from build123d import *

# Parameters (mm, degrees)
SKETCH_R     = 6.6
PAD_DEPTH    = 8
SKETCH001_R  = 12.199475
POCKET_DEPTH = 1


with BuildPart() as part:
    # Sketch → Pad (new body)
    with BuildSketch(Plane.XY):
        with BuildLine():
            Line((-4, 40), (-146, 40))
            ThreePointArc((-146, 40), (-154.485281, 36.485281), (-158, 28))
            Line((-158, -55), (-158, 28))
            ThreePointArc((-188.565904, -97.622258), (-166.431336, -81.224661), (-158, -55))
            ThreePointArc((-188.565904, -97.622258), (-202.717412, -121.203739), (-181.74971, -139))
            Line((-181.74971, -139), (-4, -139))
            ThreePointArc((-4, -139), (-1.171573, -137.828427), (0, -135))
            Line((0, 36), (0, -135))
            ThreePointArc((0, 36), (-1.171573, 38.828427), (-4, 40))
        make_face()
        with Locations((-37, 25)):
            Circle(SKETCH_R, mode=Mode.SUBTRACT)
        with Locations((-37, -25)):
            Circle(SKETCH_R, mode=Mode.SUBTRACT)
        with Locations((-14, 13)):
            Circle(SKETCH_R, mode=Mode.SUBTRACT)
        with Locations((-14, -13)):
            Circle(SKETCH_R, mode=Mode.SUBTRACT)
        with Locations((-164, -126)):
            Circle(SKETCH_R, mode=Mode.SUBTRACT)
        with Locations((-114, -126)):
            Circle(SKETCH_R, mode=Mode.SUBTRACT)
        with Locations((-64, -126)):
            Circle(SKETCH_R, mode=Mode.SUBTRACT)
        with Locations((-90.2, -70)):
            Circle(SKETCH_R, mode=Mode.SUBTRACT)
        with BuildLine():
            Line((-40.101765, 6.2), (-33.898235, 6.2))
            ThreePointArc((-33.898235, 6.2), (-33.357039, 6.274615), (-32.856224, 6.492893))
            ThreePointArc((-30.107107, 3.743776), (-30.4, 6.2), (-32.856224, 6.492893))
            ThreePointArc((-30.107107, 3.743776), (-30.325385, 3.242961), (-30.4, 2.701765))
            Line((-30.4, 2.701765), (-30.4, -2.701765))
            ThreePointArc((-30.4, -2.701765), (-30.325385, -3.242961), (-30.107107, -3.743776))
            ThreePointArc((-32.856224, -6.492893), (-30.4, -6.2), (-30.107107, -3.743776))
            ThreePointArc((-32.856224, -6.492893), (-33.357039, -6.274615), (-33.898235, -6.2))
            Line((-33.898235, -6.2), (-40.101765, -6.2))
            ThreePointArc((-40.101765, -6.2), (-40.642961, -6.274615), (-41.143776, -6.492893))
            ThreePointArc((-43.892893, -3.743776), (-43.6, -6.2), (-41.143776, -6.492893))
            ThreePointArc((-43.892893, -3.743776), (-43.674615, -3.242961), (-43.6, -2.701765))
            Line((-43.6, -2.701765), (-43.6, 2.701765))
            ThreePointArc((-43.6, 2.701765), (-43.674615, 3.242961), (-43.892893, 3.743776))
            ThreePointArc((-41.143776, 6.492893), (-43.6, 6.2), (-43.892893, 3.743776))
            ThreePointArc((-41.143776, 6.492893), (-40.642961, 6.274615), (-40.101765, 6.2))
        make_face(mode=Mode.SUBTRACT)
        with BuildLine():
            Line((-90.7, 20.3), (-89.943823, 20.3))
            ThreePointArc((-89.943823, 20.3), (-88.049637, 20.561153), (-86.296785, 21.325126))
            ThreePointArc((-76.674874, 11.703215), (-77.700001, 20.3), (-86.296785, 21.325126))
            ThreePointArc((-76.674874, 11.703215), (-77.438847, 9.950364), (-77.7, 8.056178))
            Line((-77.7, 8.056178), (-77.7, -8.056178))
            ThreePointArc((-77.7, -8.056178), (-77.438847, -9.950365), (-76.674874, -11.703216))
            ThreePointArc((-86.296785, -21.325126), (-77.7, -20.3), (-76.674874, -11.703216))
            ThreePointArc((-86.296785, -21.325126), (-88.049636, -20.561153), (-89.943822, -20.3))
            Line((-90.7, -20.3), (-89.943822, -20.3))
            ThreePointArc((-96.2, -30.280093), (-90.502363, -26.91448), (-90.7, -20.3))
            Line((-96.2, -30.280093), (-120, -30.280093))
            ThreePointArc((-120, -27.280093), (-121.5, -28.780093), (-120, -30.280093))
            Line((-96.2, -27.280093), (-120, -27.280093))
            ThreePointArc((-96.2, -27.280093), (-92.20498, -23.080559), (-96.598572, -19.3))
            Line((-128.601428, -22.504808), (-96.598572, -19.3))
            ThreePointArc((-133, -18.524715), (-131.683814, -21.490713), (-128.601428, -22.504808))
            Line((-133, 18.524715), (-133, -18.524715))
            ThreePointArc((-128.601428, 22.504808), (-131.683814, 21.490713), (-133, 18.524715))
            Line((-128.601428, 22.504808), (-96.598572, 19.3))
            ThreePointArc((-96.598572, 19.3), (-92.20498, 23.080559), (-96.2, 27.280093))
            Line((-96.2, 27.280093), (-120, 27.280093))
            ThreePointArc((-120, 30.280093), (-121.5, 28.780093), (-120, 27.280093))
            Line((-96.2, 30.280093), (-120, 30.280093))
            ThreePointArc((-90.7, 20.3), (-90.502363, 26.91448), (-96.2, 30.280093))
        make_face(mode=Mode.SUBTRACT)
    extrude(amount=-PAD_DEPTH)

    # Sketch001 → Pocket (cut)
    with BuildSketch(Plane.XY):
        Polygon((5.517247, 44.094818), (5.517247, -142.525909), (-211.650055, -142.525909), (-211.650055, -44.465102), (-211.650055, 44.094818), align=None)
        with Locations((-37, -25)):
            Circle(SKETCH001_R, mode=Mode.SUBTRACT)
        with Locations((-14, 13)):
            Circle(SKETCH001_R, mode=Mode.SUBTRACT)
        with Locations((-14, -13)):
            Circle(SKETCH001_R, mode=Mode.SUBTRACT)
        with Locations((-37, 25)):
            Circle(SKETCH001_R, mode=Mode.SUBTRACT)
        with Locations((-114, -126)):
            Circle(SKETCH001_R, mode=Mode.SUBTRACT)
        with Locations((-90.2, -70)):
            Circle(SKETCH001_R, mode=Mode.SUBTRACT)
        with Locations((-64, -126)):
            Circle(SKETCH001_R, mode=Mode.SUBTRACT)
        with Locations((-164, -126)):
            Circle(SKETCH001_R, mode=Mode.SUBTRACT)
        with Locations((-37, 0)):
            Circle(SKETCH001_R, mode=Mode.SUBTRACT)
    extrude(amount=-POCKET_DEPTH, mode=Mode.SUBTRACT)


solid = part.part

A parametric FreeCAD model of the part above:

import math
import FreeCAD as App
import Part
import Sketcher
Q = App.Units.Quantity

doc = App.newDocument("Part")
params = doc.addObject("Spreadsheet::Sheet", "Params")
for row, (alias, value) in enumerate([
    ("sketch1_radius", "12.000001 mm"),
    ("sketch1_radius2", "44.999999 mm"),
    ("sketch1_radius3", "4 mm"),
    ("sketch1_radius4", "7 mm"),
    ("sketch1_radius5", "2.000001 mm"),
    ("pad1_length", "8 mm"),
    ("pocket1_length", "1 mm"),
], start=1):
    params.set(f"A{row}", alias)
    params.set(f"B{row}", "=" + value)
    params.setAlias(f"B{row}", alias)

body = doc.addObject("PartDesign::Body", "Body")

sketch1 = body.newObject("Sketcher::SketchObject", "Sketch")
sketch1.AttachmentSupport = (doc.getObject("XY_Plane"), [""])
sketch1.MapMode = "FlatFace"
sketch1.addGeometry([
    Part.LineSegment(App.Vector(-4, 40, 0), App.Vector(-146, 40, 0)),
    Part.ArcOfCircle(Part.Circle(App.Vector(-145.999999, 27.999999, 0), App.Vector(0, 0, 1), 12.000001), math.radians(90.000006), math.radians(179.999994)),
    Part.LineSegment(App.Vector(-158, 28, 0), App.Vector(-158, -55, 0)),
    Part.ArcOfCircle(Part.Circle(App.Vector(-202.999999, -55.000001, 0), App.Vector(0, 0, 1), 44.999999), math.radians(-71.291248), math.radians(0.000001)),
    Part.ArcOfCircle(Part.Circle(App.Vector(-181.749711, -117.74971, 0), App.Vector(0, 0, 1), 21.25029), math.radians(108.708752), math.radians(270.000001)),
    Part.LineSegment(App.Vector(-181.74971, -139, 0), App.Vector(-4, -139, 0)),
    Part.ArcOfCircle(Part.Circle(App.Vector(-4, -135, 0), App.Vector(0, 0, 1), 4), math.radians(-89.999994), math.radians(-0.000006)),
    Part.LineSegment(App.Vector(0, -135, 0), App.Vector(0, 36, 0)),
    Part.ArcOfCircle(Part.Circle(App.Vector(-4, 36, 0), App.Vector(0, 0, 1), 4), math.radians(0.000006), math.radians(89.999994)),
    Part.Circle(App.Vector(-164, -126, 0), App.Vector(0, 0, 1), 6.6),
    Part.Circle(App.Vector(-114, -126, 0), App.Vector(0, 0, 1), 6.6),
    Part.Circle(App.Vector(-90.2, -70, 0), App.Vector(0, 0, 1), 6.6),
    Part.Circle(App.Vector(-64, -126, 0), App.Vector(0, 0, 1), 6.6),
    Part.ArcOfCircle(Part.Circle(App.Vector(-96.2, 23.77453, 0), App.Vector(0, 0, 1), 6.505563), math.radians(-32.28194), math.radians(90.000001)),
    Part.LineSegment(App.Vector(-90.7, 20.3, 0), App.Vector(-89.943823, 20.3, 0)),
    Part.ArcOfCircle(Part.Circle(App.Vector(-89.943824, 27.300006, 0), App.Vector(0, 0, 1), 7.000006), math.radians(-89.999992), math.radians(-58.600304)),
    Part.ArcOfCircle(Part.Circle(App.Vector(-82.649748, 15.350252, 0), App.Vector(0, 0, 1), 7), math.radians(-31.399711), math.radians(121.399711)),
    Part.ArcOfCircle(Part.Circle(App.Vector(-70.700001, 8.056178, 0), App.Vector(0, 0, 1), 6.999999), math.radians(148.600288), math.radians(180)),
    Part.LineSegment(App.Vector(-77.7, 8.056178, 0), App.Vector(-77.7, -8.056178, 0)),
    Part.ArcOfCircle(Part.Circle(App.Vector(-70.700001, -8.056179, 0), App.Vector(0, 0, 1), 6.999999), math.radians(179.999992), math.radians(211.399712)),
    Part.ArcOfCircle(Part.Circle(App.Vector(-82.649747, -15.350253, 0), App.Vector(0, 0, 1), 6.999999), math.radians(-121.39972), math.radians(31.399714)),
    Part.ArcOfCircle(Part.Circle(App.Vector(-89.943822, -27.299999, 0), App.Vector(0, 0, 1), 6.999999), math.radians(58.600288), math.radians(90)),
    Part.LineSegment(App.Vector(-89.943822, -20.3, 0), App.Vector(-90.7, -20.3, 0)),
    Part.ArcOfCircle(Part.Circle(App.Vector(-96.2, -23.77453, 0), App.Vector(0, 0, 1), 6.505563), math.radians(-90.000001), math.radians(32.28194)),
    Part.LineSegment(App.Vector(-96.2, -30.280093, 0), App.Vector(-120, -30.280093, 0)),
    Part.ArcOfCircle(Part.Circle(App.Vector(-120, -28.780093, 0), App.Vector(0, 0, 1), 1.5), math.radians(90), math.radians(270)),
    Part.LineSegment(App.Vector(-120, -27.280093, 0), App.Vector(-96.2, -27.280093, 0)),
    Part.ArcOfCircle(Part.Circle(App.Vector(-96.2, -23.280093, 0), App.Vector(0, 0, 1), 4), math.radians(-89.999998), math.radians(95.718611)),
    Part.LineSegment(App.Vector(-96.598572, -19.3, 0), App.Vector(-128.601428, -22.504808, 0)),
    Part.ArcOfCircle(Part.Circle(App.Vector(-129, -18.524715, 0), App.Vector(0, 0, 1), 4), math.radians(179.999993), math.radians(275.71862)),
    Part.LineSegment(App.Vector(-133, -18.524715, 0), App.Vector(-133, 18.524715, 0)),
    Part.ArcOfCircle(Part.Circle(App.Vector(-129, 18.524715, 0), App.Vector(0, 0, 1), 4), math.radians(84.28138), math.radians(180.000007)),
    Part.LineSegment(App.Vector(-128.601428, 22.504808, 0), App.Vector(-96.598572, 19.3, 0)),
    Part.ArcOfCircle(Part.Circle(App.Vector(-96.2, 23.280093, 0), App.Vector(0, 0, 1), 4), math.radians(-95.718611), math.radians(89.999998)),
    Part.LineSegment(App.Vector(-96.2, 27.280093, 0), App.Vector(-120, 27.280093, 0)),
    Part.ArcOfCircle(Part.Circle(App.Vector(-120, 28.780093, 0), App.Vector(0, 0, 1), 1.5), math.radians(90), math.radians(270)),
    Part.LineSegment(App.Vector(-120, 30.280093, 0), App.Vector(-96.2, 30.280093, 0)),
    Part.Circle(App.Vector(-37, -25, 0), App.Vector(0, 0, 1), 6.6),
    Part.Circle(App.Vector(-14, -13, 0), App.Vector(0, 0, 1), 6.6),
    Part.ArcOfCircle(Part.Circle(App.Vector(-40.101765, 8.200001, 0), App.Vector(0, 0, 1), 2.000001), math.radians(-121.399696), math.radians(-89.99999)),
    Part.LineSegment(App.Vector(-40.101765, 6.2, 0), App.Vector(-33.898235, 6.2, 0)),
    Part.ArcOfCircle(Part.Circle(App.Vector(-33.898235, 8.200001, 0), App.Vector(0, 0, 1), 2.000001), math.radians(-90.00001), math.radians(-58.600304)),
    Part.ArcOfCircle(Part.Circle(App.Vector(-31.814213, 4.785787, 0), App.Vector(0, 0, 1), 2), math.radians(-31.399723), math.radians(121.399723)),
    Part.ArcOfCircle(Part.Circle(App.Vector(-28.399999, 2.701765, 0), App.Vector(0, 0, 1), 2.000001), math.radians(148.600304), math.radians(180.00001)),
    Part.LineSegment(App.Vector(-30.4, 2.701765, 0), App.Vector(-30.4, -2.701765, 0)),
    Part.ArcOfCircle(Part.Circle(App.Vector(-28.399999, -2.701765, 0), App.Vector(0, 0, 1), 2.000001), math.radians(179.99999), math.radians(211.399696)),
    Part.ArcOfCircle(Part.Circle(App.Vector(-31.814213, -4.785787, 0), App.Vector(0, 0, 1), 2), math.radians(-121.399723), math.radians(31.399723)),
    Part.ArcOfCircle(Part.Circle(App.Vector(-33.898235, -8.200001, 0), App.Vector(0, 0, 1), 2.000001), math.radians(58.600304), math.radians(90.00001)),
    Part.LineSegment(App.Vector(-33.898235, -6.2, 0), App.Vector(-40.101765, -6.2, 0)),
    Part.ArcOfCircle(Part.Circle(App.Vector(-40.101765, -8.200001, 0), App.Vector(0, 0, 1), 2.000001), math.radians(89.99999), math.radians(121.399696)),
    Part.ArcOfCircle(Part.Circle(App.Vector(-42.185787, -4.785787, 0), App.Vector(0, 0, 1), 2), math.radians(148.600277), math.radians(301.399723)),
    Part.ArcOfCircle(Part.Circle(App.Vector(-45.600001, -2.701765, 0), App.Vector(0, 0, 1), 2.000001), math.radians(-31.399696), math.radians(0.00001)),
    Part.LineSegment(App.Vector(-43.6, -2.701765, 0), App.Vector(-43.6, 2.701765, 0)),
    Part.ArcOfCircle(Part.Circle(App.Vector(-45.600001, 2.701765, 0), App.Vector(0, 0, 1), 2.000001), math.radians(-0.00001), math.radians(31.399696)),
    Part.ArcOfCircle(Part.Circle(App.Vector(-42.185787, 4.785787, 0), App.Vector(0, 0, 1), 2), math.radians(58.600277), math.radians(211.399723)),
    Part.Circle(App.Vector(-37, 25, 0), App.Vector(0, 0, 1), 6.6),
    Part.Circle(App.Vector(-14, 13, 0), App.Vector(0, 0, 1), 6.6),
], False)
sketch1.addConstraint([
    Sketcher.Constraint("Tangent", 0, 2, 1, 1),
    Sketcher.Constraint("Tangent", 1, 2, 2, 1),
    Sketcher.Constraint("Tangent", 2, 2, 3, 2),
    Sketcher.Constraint("Tangent", 3, 1, 4, 1),
    Sketcher.Constraint("Tangent", 4, 2, 5, 1),
    Sketcher.Constraint("Tangent", 5, 2, 6, 1),
    Sketcher.Constraint("Tangent", 6, 2, 7, 1),
    Sketcher.Constraint("Tangent", 7, 2, 8, 1),
    Sketcher.Constraint("Tangent", 8, 2, 0, 1),
    Sketcher.Constraint("Coincident", 13, 1, 14, 1),
    Sketcher.Constraint("Tangent", 14, 2, 15, 1),
    Sketcher.Constraint("Tangent", 15, 2, 16, 2),
    Sketcher.Constraint("Tangent", 16, 1, 17, 1),
    Sketcher.Constraint("Tangent", 17, 2, 18, 1),
    Sketcher.Constraint("Tangent", 18, 2, 19, 1),
    Sketcher.Constraint("Tangent", 19, 2, 20, 2),
    Sketcher.Constraint("Tangent", 20, 1, 21, 1),
    Sketcher.Constraint("Tangent", 21, 2, 22, 1),
    Sketcher.Constraint("Coincident", 22, 2, 23, 2),
    Sketcher.Constraint("Tangent", 23, 1, 24, 1),
    Sketcher.Constraint("Tangent", 24, 2, 25, 2),
    Sketcher.Constraint("Tangent", 25, 1, 26, 1),
    Sketcher.Constraint("Tangent", 26, 2, 27, 1),
    Sketcher.Constraint("Tangent", 27, 2, 28, 1),
    Sketcher.Constraint("Tangent", 28, 2, 29, 2),
    Sketcher.Constraint("Tangent", 29, 1, 30, 1),
    Sketcher.Constraint("Tangent", 30, 2, 31, 2),
    Sketcher.Constraint("Tangent", 31, 1, 32, 1),
    Sketcher.Constraint("Tangent", 32, 2, 33, 1),
    Sketcher.Constraint("Tangent", 33, 2, 34, 1),
    Sketcher.Constraint("Tangent", 34, 2, 35, 2),
    Sketcher.Constraint("Tangent", 35, 1, 36, 1),
    Sketcher.Constraint("Tangent", 36, 2, 13, 2),
    Sketcher.Constraint("Tangent", 39, 2, 40, 1),
    Sketcher.Constraint("Tangent", 40, 2, 41, 1),
    Sketcher.Constraint("Tangent", 41, 2, 42, 2),
    Sketcher.Constraint("Tangent", 42, 1, 43, 1),
    Sketcher.Constraint("Tangent", 43, 2, 44, 1),
    Sketcher.Constraint("Tangent", 44, 2, 45, 1),
    Sketcher.Constraint("Tangent", 45, 2, 46, 2),
    Sketcher.Constraint("Tangent", 46, 1, 47, 1),
    Sketcher.Constraint("Tangent", 47, 2, 48, 1),
    Sketcher.Constraint("Tangent", 48, 2, 49, 1),
    Sketcher.Constraint("Tangent", 49, 2, 50, 2),
    Sketcher.Constraint("Tangent", 50, 1, 51, 1),
    Sketcher.Constraint("Tangent", 51, 2, 52, 1),
    Sketcher.Constraint("Tangent", 52, 2, 53, 1),
    Sketcher.Constraint("Tangent", 53, 2, 54, 2),
    Sketcher.Constraint("Tangent", 54, 1, 39, 1),
    Sketcher.Constraint("Horizontal", 0),
    Sketcher.Constraint("Vertical", 2),
    Sketcher.Constraint("Horizontal", 5),
    Sketcher.Constraint("Vertical", 7),
    Sketcher.Constraint("Horizontal", 14),
    Sketcher.Constraint("Vertical", 18),
    Sketcher.Constraint("Horizontal", 22),
    Sketcher.Constraint("Horizontal", 24),
    Sketcher.Constraint("Horizontal", 26),
    Sketcher.Constraint("Vertical", 30),
    Sketcher.Constraint("Horizontal", 34),
    Sketcher.Constraint("Horizontal", 36),
    Sketcher.Constraint("Horizontal", 40),
    Sketcher.Constraint("Vertical", 44),
    Sketcher.Constraint("Horizontal", 48),
    Sketcher.Constraint("Vertical", 52),
    Sketcher.Constraint("Equal", 6, 8),
    Sketcher.Constraint("Equal", 9, 10),
    Sketcher.Constraint("Equal", 10, 11),
    Sketcher.Constraint("Equal", 11, 12),
    Sketcher.Constraint("Equal", 16, 17),
    Sketcher.Constraint("Equal", 17, 19),
    Sketcher.Constraint("Equal", 19, 20),
    Sketcher.Constraint("Equal", 20, 21),
    Sketcher.Constraint("Equal", 13, 23),
    Sketcher.Constraint("Equal", 8, 27),
    Sketcher.Constraint("Equal", 27, 29),
    Sketcher.Constraint("Equal", 29, 31),
    Sketcher.Constraint("Equal", 31, 33),
    Sketcher.Constraint("Equal", 25, 35),
    Sketcher.Constraint("Equal", 12, 37),
    Sketcher.Constraint("Equal", 37, 38),
    Sketcher.Constraint("Equal", 39, 41),
    Sketcher.Constraint("Equal", 41, 42),
    Sketcher.Constraint("Equal", 42, 43),
    Sketcher.Constraint("Equal", 43, 45),
    Sketcher.Constraint("Equal", 45, 46),
    Sketcher.Constraint("Equal", 46, 47),
    Sketcher.Constraint("Equal", 47, 49),
    Sketcher.Constraint("Equal", 49, 50),
    Sketcher.Constraint("Equal", 50, 51),
    Sketcher.Constraint("Equal", 51, 53),
    Sketcher.Constraint("Equal", 53, 54),
    Sketcher.Constraint("Equal", 38, 55),
    Sketcher.Constraint("Equal", 55, 56),
    Sketcher.Constraint("Symmetric", 16, 3, 20, 3, -1),
    Sketcher.Constraint("Symmetric", 15, 3, 21, 3, -1),
    Sketcher.Constraint("Symmetric", 13, 3, 23, 3, -1),
    Sketcher.Constraint("Symmetric", 42, 3, 46, 3, -1),
    Sketcher.Constraint("Symmetric", 39, 3, 49, 3, -1),
    Sketcher.Constraint("Symmetric", 37, 3, 55, 3, -1),
    Sketcher.Constraint("Symmetric", 38, 3, 56, 3, -1),
    Sketcher.Constraint("Symmetric", 28, 2, 31, 1, -1),
    Sketcher.Constraint("PointOnObject", 6, 2, -2),
    Sketcher.Constraint("Horizontal", 9, 3, 10, 3),
    Sketcher.Constraint("Horizontal", 10, 3, 12, 3),
    Sketcher.Constraint("Horizontal", 46, 3, 50, 3),
    Sketcher.Constraint("Horizontal", 45, 3, 51, 3),
    Sketcher.Constraint("Horizontal", 43, 3, 53, 3),
    Sketcher.Constraint("Vertical", 23, 3, 27, 3),
    Sketcher.Constraint("Vertical", 25, 3, 35, 3),
    Sketcher.Constraint("Radius", 1, Q("12.000001 mm")),
    Sketcher.Constraint("Radius", 3, Q("44.999999 mm")),
    Sketcher.Constraint("Radius", 6, Q("4 mm")),
    Sketcher.Constraint("Radius", 16, Q("7 mm")),
    Sketcher.Constraint("Radius", 39, Q("2.000001 mm")),
    Sketcher.Constraint("Diameter", 9, Q("13.2 mm")),
    Sketcher.Constraint("Radius", 25, Q("1.5 mm")),
    Sketcher.Constraint("DistanceX", 0, 2, 0, 1, Q("142 mm")),
    Sketcher.Constraint("DistanceY", 2, 2, 2, 1, Q("83 mm")),
    Sketcher.Constraint("DistanceY", 7, 1, 7, 2, Q("171 mm")),
    Sketcher.Constraint("DistanceX", 24, 2, 24, 1, Q("23.8 mm")),
    Sketcher.Constraint("DistanceY", -1, 1, 1, 3, Q("27.999999 mm")),
    Sketcher.Constraint("DistanceX", 9, 3, -1, 1, Q("164 mm")),
    Sketcher.Constraint("DistanceY", 9, 3, -1, 1, Q("126 mm")),
    Sketcher.Constraint("DistanceX", 10, 3, -1, 1, Q("114 mm")),
    Sketcher.Constraint("DistanceY", 11, 3, -1, 1, Q("70 mm")),
    Sketcher.Constraint("DistanceX", 12, 3, -1, 1, Q("64 mm")),
    Sketcher.Constraint("DistanceX", 25, 3, -1, 1, Q("120 mm")),
    Sketcher.Constraint("DistanceX", 29, 3, -1, 1, Q("129 mm")),
    Sketcher.Constraint("DistanceX", 37, 3, -1, 1, Q("37 mm")),
    Sketcher.Constraint("DistanceY", 37, 3, -1, 1, Q("25 mm")),
    Sketcher.Constraint("DistanceX", 38, 3, -1, 1, Q("14 mm")),
    Sketcher.Constraint("DistanceY", 38, 3, -1, 1, Q("13 mm")),
    Sketcher.Constraint("DistanceX", 11, 3, -1, 1, Q("90.2 mm")),
    Sketcher.Constraint("DistanceX", 17, 3, -1, 1, Q("70.700001 mm")),
    Sketcher.Constraint("DistanceY", 21, 3, -1, 1, Q("27.299999 mm")),
    Sketcher.Constraint("DistanceY", -1, 1, 39, 3, Q("8.200001 mm")),
    Sketcher.Constraint("DistanceX", 43, 3, -1, 1, Q("28.399999 mm")),
    Sketcher.Constraint("DistanceX", 51, 3, -1, 1, Q("45.600001 mm")),
    Sketcher.Constraint("DistanceX", 13, 1, -1, 1, Q("90.7 mm")),
    Sketcher.Constraint("DistanceY", 27, 2, -1, 1, Q("19.3 mm")),
    Sketcher.Constraint("Radius", 4, Q("21.25029 mm")),
    Sketcher.Constraint("DistanceX", 22, 2, 22, 1, Q("0.756178 mm")),
    Sketcher.Constraint("DistanceX", 40, 1, 40, 2, Q("6.20353 mm")),
    Sketcher.Constraint("DistanceY", 30, 1, 30, 2, Q("37.04943 mm")),
    Sketcher.Constraint("DistanceY", 44, 2, 44, 1, Q("5.40353 mm")),
    Sketcher.Constraint("DistanceY", 18, 2, 18, 1, Q("16.112356 mm")),
])
sketch1.setExpression("Constraints[110]", "Params.sketch1_radius")
sketch1.setExpression("Constraints[111]", "Params.sketch1_radius2")
sketch1.setExpression("Constraints[112]", "Params.sketch1_radius3")
sketch1.setExpression("Constraints[113]", "Params.sketch1_radius4")
sketch1.setExpression("Constraints[114]", "Params.sketch1_radius5")
pad1 = body.newObject("PartDesign::Pad", "Pad")
pad1.Profile = sketch1
pad1.setExpression("Length", "Params.pad1_length")
pad1.Reversed = True

sketch2 = body.newObject("Sketcher::SketchObject", "Sketch001")
sketch2.AttachmentSupport = (doc.getObject("XY_Plane"), [""])
sketch2.MapMode = "FlatFace"
sketch2.addGeometry([
    Part.LineSegment(App.Vector(5.517247, -142.525909, 0), App.Vector(5.517247, 44.094818, 0)),
    Part.LineSegment(App.Vector(5.517247, 44.094818, 0), App.Vector(-211.650055, 44.094818, 0)),
    Part.LineSegment(App.Vector(-211.650055, 44.094818, 0), App.Vector(-211.650055, -142.525909, 0)),
    Part.LineSegment(App.Vector(-211.650055, -142.525909, 0), App.Vector(5.517247, -142.525909, 0)),
    Part.Circle(App.Vector(-64, -126, 0), App.Vector(0, 0, 1), 12.199475),
    Part.Circle(App.Vector(-114, -126, 0), App.Vector(0, 0, 1), 12.199475),
    Part.Circle(App.Vector(-164, -126, 0), App.Vector(0, 0, 1), 12.199475),
    Part.Circle(App.Vector(-90.2, -70, 0), App.Vector(0, 0, 1), 12.199475),
    Part.Circle(App.Vector(-14, -13, 0), App.Vector(0, 0, 1), 12.199475),
    Part.Circle(App.Vector(-37, -25, 0), App.Vector(0, 0, 1), 12.199475),
    Part.Circle(App.Vector(-14, 13, 0), App.Vector(0, 0, 1), 12.199475),
    Part.Circle(App.Vector(-37, 0, 0), App.Vector(0, 0, 1), 12.199475),
    Part.Circle(App.Vector(-37, 25, 0), App.Vector(0, 0, 1), 12.199475),
], False)
sketch2.addConstraint([
    Sketcher.Constraint("Coincident", 0, 2, 1, 1),
    Sketcher.Constraint("Coincident", 1, 2, 2, 1),
    Sketcher.Constraint("Coincident", 2, 2, 3, 1),
    Sketcher.Constraint("Coincident", 3, 2, 0, 1),
    Sketcher.Constraint("Vertical", 0),
    Sketcher.Constraint("Horizontal", 1),
    Sketcher.Constraint("Vertical", 2),
    Sketcher.Constraint("Horizontal", 3),
    Sketcher.Constraint("Equal", 4, 5),
    Sketcher.Constraint("Equal", 5, 6),
    Sketcher.Constraint("Equal", 6, 7),
    Sketcher.Constraint("Equal", 7, 8),
    Sketcher.Constraint("Equal", 8, 9),
    Sketcher.Constraint("Equal", 9, 10),
    Sketcher.Constraint("Equal", 10, 11),
    Sketcher.Constraint("Equal", 11, 12),
    Sketcher.Constraint("Symmetric", 8, 3, 10, 3, -1),
    Sketcher.Constraint("Symmetric", 9, 3, 12, 3, -1),
    Sketcher.Constraint("PointOnObject", 11, 3, -1),
    Sketcher.Constraint("Horizontal", 4, 3, 5, 3),
    Sketcher.Constraint("Horizontal", 5, 3, 6, 3),
    Sketcher.Constraint("Vertical", 9, 3, 11, 3),
    Sketcher.Constraint("DistanceX", 4, 3, -1, 1, Q("64 mm")),
    Sketcher.Constraint("DistanceY", 4, 3, -1, 1, Q("126 mm")),
    Sketcher.Constraint("DistanceX", 5, 3, -1, 1, Q("114 mm")),
    Sketcher.Constraint("DistanceX", 6, 3, -1, 1, Q("164 mm")),
    Sketcher.Constraint("DistanceY", 7, 3, -1, 1, Q("70 mm")),
    Sketcher.Constraint("DistanceX", 8, 3, -1, 1, Q("14 mm")),
    Sketcher.Constraint("DistanceY", 8, 3, -1, 1, Q("13 mm")),
    Sketcher.Constraint("DistanceX", 9, 3, -1, 1, Q("37 mm")),
    Sketcher.Constraint("DistanceY", 9, 3, -1, 1, Q("25 mm")),
    Sketcher.Constraint("DistanceX", 7, 3, -1, 1, Q("90.2 mm")),
    Sketcher.Constraint("Diameter", 4, Q("24.39895 mm")),
    Sketcher.Constraint("DistanceX", 1, 2, 1, 1, Q("217.167302 mm")),
    Sketcher.Constraint("DistanceY", 0, 1, 0, 2, Q("186.620727 mm")),
    Sketcher.Constraint("DistanceY", 2, 2, -1, 1, Q("142.525909 mm")),
    Sketcher.Constraint("DistanceX", -1, 1, 0, 2, Q("5.517247 mm")),
])
pocket1 = body.newObject("PartDesign::Pocket", "Pocket")
pocket1.Profile = sketch2
pocket1.setExpression("Length", "Params.pocket1_length")

doc.recompute()
